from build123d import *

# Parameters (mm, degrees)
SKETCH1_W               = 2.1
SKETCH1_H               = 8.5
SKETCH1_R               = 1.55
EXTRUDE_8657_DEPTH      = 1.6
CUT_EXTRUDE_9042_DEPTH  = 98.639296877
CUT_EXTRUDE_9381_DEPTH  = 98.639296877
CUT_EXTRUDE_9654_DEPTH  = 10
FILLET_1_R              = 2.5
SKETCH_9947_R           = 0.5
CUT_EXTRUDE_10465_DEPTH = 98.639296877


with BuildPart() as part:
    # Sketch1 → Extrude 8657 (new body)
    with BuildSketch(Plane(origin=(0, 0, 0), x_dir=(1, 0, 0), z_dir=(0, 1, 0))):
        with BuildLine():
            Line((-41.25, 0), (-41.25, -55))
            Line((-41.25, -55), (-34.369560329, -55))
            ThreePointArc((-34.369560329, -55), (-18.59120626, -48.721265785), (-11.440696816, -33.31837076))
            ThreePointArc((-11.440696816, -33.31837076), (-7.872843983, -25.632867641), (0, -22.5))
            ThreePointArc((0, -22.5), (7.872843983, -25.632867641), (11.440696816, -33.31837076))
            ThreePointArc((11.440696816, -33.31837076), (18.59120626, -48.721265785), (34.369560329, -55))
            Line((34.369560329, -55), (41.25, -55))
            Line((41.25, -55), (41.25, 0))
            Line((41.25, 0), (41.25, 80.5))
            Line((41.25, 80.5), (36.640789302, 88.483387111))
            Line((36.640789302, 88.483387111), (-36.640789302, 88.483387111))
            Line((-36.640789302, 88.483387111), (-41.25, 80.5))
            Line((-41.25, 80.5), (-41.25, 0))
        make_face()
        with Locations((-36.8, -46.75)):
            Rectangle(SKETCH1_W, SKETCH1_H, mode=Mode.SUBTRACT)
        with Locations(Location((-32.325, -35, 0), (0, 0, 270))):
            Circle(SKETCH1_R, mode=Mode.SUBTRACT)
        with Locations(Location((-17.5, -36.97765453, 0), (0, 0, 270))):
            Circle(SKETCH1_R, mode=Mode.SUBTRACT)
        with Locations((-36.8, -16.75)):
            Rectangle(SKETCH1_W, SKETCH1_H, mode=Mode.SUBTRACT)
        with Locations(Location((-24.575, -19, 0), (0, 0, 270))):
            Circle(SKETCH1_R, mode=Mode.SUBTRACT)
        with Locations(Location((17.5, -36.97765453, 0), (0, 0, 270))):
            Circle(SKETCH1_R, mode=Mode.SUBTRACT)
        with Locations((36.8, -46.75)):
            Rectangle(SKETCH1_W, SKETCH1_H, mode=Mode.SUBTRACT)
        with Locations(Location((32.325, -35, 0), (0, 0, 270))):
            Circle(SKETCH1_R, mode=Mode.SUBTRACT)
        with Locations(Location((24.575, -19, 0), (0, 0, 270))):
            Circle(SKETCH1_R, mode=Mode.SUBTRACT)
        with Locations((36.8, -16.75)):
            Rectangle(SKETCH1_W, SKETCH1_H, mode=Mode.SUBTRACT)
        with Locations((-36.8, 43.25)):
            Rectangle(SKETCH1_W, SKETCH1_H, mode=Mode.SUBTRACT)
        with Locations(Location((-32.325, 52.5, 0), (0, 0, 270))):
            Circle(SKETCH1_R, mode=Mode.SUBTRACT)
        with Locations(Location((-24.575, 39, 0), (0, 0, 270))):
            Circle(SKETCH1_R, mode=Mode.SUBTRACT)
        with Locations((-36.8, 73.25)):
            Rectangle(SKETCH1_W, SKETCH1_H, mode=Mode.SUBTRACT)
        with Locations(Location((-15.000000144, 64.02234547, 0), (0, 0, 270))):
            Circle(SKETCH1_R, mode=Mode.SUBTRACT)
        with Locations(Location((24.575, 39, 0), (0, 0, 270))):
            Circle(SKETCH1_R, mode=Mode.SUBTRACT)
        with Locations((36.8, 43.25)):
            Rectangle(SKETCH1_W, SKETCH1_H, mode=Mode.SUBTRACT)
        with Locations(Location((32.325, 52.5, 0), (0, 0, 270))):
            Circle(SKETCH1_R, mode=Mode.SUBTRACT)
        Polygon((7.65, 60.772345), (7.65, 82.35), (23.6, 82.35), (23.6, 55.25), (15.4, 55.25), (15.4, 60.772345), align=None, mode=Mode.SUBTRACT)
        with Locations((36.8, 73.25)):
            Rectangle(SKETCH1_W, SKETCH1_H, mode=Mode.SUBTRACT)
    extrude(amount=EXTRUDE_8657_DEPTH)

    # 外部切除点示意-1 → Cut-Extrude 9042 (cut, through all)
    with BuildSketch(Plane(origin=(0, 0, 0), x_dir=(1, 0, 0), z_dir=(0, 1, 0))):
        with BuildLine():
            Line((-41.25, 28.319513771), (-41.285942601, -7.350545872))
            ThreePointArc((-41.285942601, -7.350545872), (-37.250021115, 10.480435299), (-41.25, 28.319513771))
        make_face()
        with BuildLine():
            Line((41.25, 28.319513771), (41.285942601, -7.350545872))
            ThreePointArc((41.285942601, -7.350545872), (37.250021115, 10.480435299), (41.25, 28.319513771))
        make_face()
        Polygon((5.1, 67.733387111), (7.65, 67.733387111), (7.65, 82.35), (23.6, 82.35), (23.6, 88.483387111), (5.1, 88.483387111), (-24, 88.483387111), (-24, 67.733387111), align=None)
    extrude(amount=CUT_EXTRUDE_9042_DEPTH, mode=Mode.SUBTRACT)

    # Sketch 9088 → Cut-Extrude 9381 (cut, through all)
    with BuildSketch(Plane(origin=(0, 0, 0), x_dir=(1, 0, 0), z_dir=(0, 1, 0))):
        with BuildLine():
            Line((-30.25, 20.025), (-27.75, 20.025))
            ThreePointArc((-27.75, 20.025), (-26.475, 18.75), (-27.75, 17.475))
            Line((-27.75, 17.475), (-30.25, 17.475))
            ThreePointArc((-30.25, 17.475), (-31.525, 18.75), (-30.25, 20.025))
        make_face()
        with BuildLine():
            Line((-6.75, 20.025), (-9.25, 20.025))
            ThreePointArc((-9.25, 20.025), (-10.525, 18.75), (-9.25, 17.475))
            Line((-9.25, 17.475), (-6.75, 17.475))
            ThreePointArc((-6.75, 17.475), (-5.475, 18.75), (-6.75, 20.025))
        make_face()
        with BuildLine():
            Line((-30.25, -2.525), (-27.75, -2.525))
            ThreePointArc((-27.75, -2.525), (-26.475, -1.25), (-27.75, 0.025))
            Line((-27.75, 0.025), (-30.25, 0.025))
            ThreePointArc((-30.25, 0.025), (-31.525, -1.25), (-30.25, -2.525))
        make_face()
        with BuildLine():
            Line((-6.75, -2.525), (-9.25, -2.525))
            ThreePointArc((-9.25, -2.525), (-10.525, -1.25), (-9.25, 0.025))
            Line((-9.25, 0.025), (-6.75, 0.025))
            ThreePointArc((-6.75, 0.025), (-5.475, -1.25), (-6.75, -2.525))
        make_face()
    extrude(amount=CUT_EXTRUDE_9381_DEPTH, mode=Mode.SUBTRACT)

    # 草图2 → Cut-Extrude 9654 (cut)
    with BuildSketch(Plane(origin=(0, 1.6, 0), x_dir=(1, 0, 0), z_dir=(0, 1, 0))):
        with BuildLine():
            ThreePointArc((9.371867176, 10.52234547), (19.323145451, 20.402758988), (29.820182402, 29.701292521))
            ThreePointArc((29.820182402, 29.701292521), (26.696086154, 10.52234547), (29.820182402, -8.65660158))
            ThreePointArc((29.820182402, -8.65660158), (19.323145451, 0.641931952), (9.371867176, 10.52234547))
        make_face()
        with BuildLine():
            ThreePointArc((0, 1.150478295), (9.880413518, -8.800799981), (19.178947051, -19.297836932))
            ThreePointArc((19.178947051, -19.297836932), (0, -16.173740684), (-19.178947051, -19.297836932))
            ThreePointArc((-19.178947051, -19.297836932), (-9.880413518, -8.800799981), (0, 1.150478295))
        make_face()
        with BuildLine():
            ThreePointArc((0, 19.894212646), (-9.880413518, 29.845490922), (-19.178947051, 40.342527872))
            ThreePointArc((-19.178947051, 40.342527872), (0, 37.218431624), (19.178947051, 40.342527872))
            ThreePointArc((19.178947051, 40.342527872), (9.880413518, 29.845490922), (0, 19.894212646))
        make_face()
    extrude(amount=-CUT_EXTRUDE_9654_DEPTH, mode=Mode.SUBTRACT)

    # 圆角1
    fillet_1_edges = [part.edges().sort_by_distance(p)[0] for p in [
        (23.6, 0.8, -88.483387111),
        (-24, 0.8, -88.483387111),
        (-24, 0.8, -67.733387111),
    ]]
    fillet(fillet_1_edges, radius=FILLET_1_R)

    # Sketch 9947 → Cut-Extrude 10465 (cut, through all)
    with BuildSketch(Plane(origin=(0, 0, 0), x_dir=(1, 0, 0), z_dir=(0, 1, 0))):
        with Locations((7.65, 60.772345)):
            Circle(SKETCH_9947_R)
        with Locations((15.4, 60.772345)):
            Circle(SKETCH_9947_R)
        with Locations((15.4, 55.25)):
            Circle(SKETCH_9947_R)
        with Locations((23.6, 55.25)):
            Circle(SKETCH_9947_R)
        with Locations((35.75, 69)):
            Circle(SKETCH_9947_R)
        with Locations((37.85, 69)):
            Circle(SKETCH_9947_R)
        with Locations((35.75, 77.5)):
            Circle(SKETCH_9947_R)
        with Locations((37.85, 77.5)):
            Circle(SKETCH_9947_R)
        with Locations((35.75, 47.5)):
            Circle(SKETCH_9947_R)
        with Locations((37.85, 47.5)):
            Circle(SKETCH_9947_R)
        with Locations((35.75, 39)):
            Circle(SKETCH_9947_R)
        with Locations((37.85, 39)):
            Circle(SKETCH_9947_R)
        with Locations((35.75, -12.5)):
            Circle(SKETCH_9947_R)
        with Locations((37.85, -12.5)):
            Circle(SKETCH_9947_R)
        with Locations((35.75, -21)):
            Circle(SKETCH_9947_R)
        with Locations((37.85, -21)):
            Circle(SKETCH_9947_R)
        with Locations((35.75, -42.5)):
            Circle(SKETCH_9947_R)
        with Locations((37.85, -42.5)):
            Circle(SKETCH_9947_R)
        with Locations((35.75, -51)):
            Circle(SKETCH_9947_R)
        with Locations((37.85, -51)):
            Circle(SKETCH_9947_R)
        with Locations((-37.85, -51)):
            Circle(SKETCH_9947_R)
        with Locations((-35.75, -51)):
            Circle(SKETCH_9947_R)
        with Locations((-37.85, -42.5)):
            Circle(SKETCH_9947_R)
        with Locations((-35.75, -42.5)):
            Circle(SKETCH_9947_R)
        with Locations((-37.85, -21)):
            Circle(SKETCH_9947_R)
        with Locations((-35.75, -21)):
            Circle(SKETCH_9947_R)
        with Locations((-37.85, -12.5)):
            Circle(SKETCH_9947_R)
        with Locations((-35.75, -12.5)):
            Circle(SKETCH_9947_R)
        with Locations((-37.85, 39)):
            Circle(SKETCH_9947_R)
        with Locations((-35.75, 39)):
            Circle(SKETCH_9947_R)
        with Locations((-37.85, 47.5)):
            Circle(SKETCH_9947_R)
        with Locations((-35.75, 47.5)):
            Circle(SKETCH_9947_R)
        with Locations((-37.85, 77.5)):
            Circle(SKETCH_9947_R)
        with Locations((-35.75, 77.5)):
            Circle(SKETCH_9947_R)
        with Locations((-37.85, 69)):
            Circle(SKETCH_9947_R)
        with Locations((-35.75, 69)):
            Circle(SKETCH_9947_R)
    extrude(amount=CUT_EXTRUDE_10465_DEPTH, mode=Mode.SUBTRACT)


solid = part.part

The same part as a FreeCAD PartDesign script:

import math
import FreeCAD as App
import Part
import Sketcher
from FreeCAD import Vector
Q = App.Units.Quantity


def edges_at(feature, points):
    """Names of the edges that pass closest to the given points."""
    edges = feature.Shape.Edges
    near = lambda p: min(range(len(edges)), key=lambda i: edges[i].distToShape(Part.Vertex(*p))[0])
    return sorted({f"Edge{near(p) + 1}" for p in points})


def add_polygon(sketch, points):
    """Adds a closed chain of lines whose ends are joined by coincident constraints."""
    first, n = sketch.GeometryCount, len(points)
    for a, b in zip(points, points[1:] + points[:1]):
        sketch.addGeometry(Part.LineSegment(App.Vector(*a, 0), App.Vector(*b, 0)), False)
    for i in range(n):
        sketch.addConstraint(Sketcher.Constraint("Coincident", first + i, 2, first + (i + 1) % n, 1))

doc = App.newDocument("Part")
body = doc.addObject("PartDesign::Body", "Body")

# Sketch on XZ plane
sketch1 = body.newObject("Sketcher::SketchObject", "Sketch")
sketch1.AttachmentSupport = (doc.getObject("XZ_Plane"), [""])
sketch1.MapMode = "FlatFace"
sketch1.addGeometry(Part.LineSegment(Vector(-41.2, 55, 0), Vector(-34.4, 55, 0)), False)  # 0
sketch1.addGeometry(Part.ArcOfCircle(Part.Circle(Vector(-34.4, 32, 0), Vector(0, 0, 1), 23), math.radians(3), math.radians(90)), False)  # 1
sketch1.addGeometry(Part.ArcOfCircle(Part.Circle(Vector(0, 34, 0), Vector(0, 0, 1), 11.5), math.radians(-177), math.radians(-90)), False)  # 2
sketch1.addGeometry(Part.ArcOfCircle(Part.Circle(Vector(0, 34, 0), Vector(0, 0, 1), 11.5), math.radians(-90), math.radians(-3)), False)  # 3
sketch1.addGeometry(Part.ArcOfCircle(Part.Circle(Vector(34.4, 32, 0), Vector(0, 0, 1), 23), math.radians(90), math.radians(177)), False)  # 4
sketch1.addGeometry(Part.LineSegment(Vector(34.4, 55, 0), Vector(41.2, 55, 0)), False)  # 5
sketch1.addGeometry(Part.LineSegment(Vector(41.2, 55, 0), Vector(41.2, -80.5, 0)), False)  # 6
sketch1.addGeometry(Part.LineSegment(Vector(41.2, -80.5, 0), Vector(36.6, -88.5, 0)), False)  # 7
sketch1.addGeometry(Part.LineSegment(Vector(36.6, -88.5, 0), Vector(-36.6, -88.5, 0)), False)  # 8
sketch1.addGeometry(Part.LineSegment(Vector(-36.6, -88.5, 0), Vector(-41.2, -80.5, 0)), False)  # 9
sketch1.addGeometry(Part.LineSegment(Vector(-41.2, -80.5, 0), Vector(-41.2, 55, 0)), False)  # 10
add_polygon(sketch1, [(-35.8, 51), (-37.9, 51), (-37.9, 42.5), (-35.8, 42.5)])  # lines 11-14
sketch1.addGeometry(Part.Circle(Vector(-32.3, 35, 0), Vector(0, 0, 1), 1.6), False)  # 15
sketch1.addGeometry(Part.Circle(Vector(-24.6, 19, 0), Vector(0, 0, 1), 1.6), False)  # 16
sketch1.addGeometry(Part.Circle(Vector(-17.5, 37, 0), Vector(0, 0, 1), 1.6), False)  # 17
add_polygon(sketch1, [(-35.8, 21), (-37.9, 21), (-37.9, 12.5), (-35.8, 12.5)])  # lines 18-21
sketch1.addGeometry(Part.Circle(Vector(17.5, 37, 0), Vector(0, 0, 1), 1.6), False)  # 22
add_polygon(sketch1, [(37.9, 51), (35.8, 51), (35.8, 42.5), (37.9, 42.5)])  # lines 23-26
sketch1.addGeometry(Part.Circle(Vector(32.3, 35, 0), Vector(0, 0, 1), 1.6), False)  # 27
sketch1.addGeometry(Part.Circle(Vector(24.6, 19, 0), Vector(0, 0, 1), 1.6), False)  # 28
add_polygon(sketch1, [(37.9, 21), (35.8, 21), (35.8, 12.5), (37.9, 12.5)])  # lines 29-32
add_polygon(sketch1, [(-35.8, -39), (-37.9, -39), (-37.9, -47.5), (-35.8, -47.5)])  # lines 33-36
sketch1.addGeometry(Part.Circle(Vector(-24.6, -39, 0), Vector(0, 0, 1), 1.6), False)  # 37
sketch1.addGeometry(Part.Circle(Vector(-32.3, -52.5, 0), Vector(0, 0, 1), 1.6), False)  # 38
add_polygon(sketch1, [(-35.8, -69), (-37.9, -69), (-37.9, -77.5), (-35.8, -77.5)])  # lines 39-42
sketch1.addGeometry(Part.Circle(Vector(-15, -64, 0), Vector(0, 0, 1), 1.6), False)  # 43
sketch1.addGeometry(Part.Circle(Vector(24.6, -39, 0), Vector(0, 0, 1), 1.6), False)  # 44
add_polygon(sketch1, [(37.9, -39), (35.8, -39), (35.8, -47.5), (37.9, -47.5)])  # lines 45-48
add_polygon(sketch1, [(15.4, -60.8), (7.7, -60.8), (7.7, -82.3), (23.6, -82.3), (23.6, -55.2), (15.4, -55.2)])  # lines 49-54
sketch1.addGeometry(Part.Circle(Vector(32.3, -52.5, 0), Vector(0, 0, 1), 1.6), False)  # 55
add_polygon(sketch1, [(37.9, -69), (35.8, -69), (35.8, -77.5), (37.9, -77.5)])  # lines 56-59
sketch1.addConstraint(Sketcher.Constraint("Tangent", 0, 2, 1, 2))
sketch1.addConstraint(Sketcher.Constraint("Tangent", 1, 1, 2, 1))
sketch1.addConstraint(Sketcher.Constraint("Tangent", 2, 2, 3, 1))
sketch1.addConstraint(Sketcher.Constraint("Tangent", 3, 2, 4, 2))
sketch1.addConstraint(Sketcher.Constraint("Tangent", 4, 1, 5, 1))
sketch1.addConstraint(Sketcher.Constraint("Coincident", 5, 2, 6, 1))
sketch1.addConstraint(Sketcher.Constraint("Coincident", 6, 2, 7, 1))
sketch1.addConstraint(Sketcher.Constraint("Coincident", 7, 2, 8, 1))
sketch1.addConstraint(Sketcher.Constraint("Coincident", 8, 2, 9, 1))
sketch1.addConstraint(Sketcher.Constraint("Coincident", 9, 2, 10, 1))
sketch1.addConstraint(Sketcher.Constraint("Coincident", 10, 2, 0, 1))
sketch1.addConstraint(Sketcher.Constraint("Horizontal", 0))
sketch1.addConstraint(Sketcher.Constraint("Horizontal", 5))
sketch1.addConstraint(Sketcher.Constraint("Vertical", 6))
sketch1.addConstraint(Sketcher.Constraint("Horizontal", 8))
sketch1.addConstraint(Sketcher.Constraint("Vertical", 10))
sketch1.addConstraint(Sketcher.Constraint("Horizontal", 11))
sketch1.addConstraint(Sketcher.Constraint("Vertical", 12))
sketch1.addConstraint(Sketcher.Constraint("Horizontal", 13))
sketch1.addConstraint(Sketcher.Constraint("Vertical", 14))
sketch1.addConstraint(Sketcher.Constraint("Horizontal", 18))
sketch1.addConstraint(Sketcher.Constraint("Vertical", 19))
sketch1.addConstraint(Sketcher.Constraint("Horizontal", 20))
sketch1.addConstraint(Sketcher.Constraint("Vertical", 21))
sketch1.addConstraint(Sketcher.Constraint("Horizontal", 23))
sketch1.addConstraint(Sketcher.Constraint("Vertical", 24))
sketch1.addConstraint(Sketcher.Constraint("Horizontal", 25))
sketch1.addConstraint(Sketcher.Constraint("Vertical", 26))
sketch1.addConstraint(Sketcher.Constraint("Horizontal", 29))
sketch1.addConstraint(Sketcher.Constraint("Vertical", 30))
sketch1.addConstraint(Sketcher.Constraint("Horizontal", 31))
sketch1.addConstraint(Sketcher.Constraint("Vertical", 32))
sketch1.addConstraint(Sketcher.Constraint("Horizontal", 33))
sketch1.addConstraint(Sketcher.Constraint("Vertical", 34))
sketch1.addConstraint(Sketcher.Constraint("Horizontal", 35))
sketch1.addConstraint(Sketcher.Constraint("Vertical", 36))
sketch1.addConstraint(Sketcher.Constraint("Horizontal", 39))
sketch1.addConstraint(Sketcher.Constraint("Vertical", 40))
sketch1.addConstraint(Sketcher.Constraint("Horizontal", 41))
sketch1.addConstraint(Sketcher.Constraint("Vertical", 42))
sketch1.addConstraint(Sketcher.Constraint("Horizontal", 45))
sketch1.addConstraint(Sketcher.Constraint("Vertical", 46))
sketch1.addConstraint(Sketcher.Constraint("Horizontal", 47))
sketch1.addConstraint(Sketcher.Constraint("Vertical", 48))
sketch1.addConstraint(Sketcher.Constraint("Horizontal", 49))
sketch1.addConstraint(Sketcher.Constraint("Vertical", 50))
sketch1.addConstraint(Sketcher.Constraint("Horizontal", 51))
sketch1.addConstraint(Sketcher.Constraint("Vertical", 52))
sketch1.addConstraint(Sketcher.Constraint("Horizontal", 53))
sketch1.addConstraint(Sketcher.Constraint("Vertical", 54))
sketch1.addConstraint(Sketcher.Constraint("Horizontal", 56))
sketch1.addConstraint(Sketcher.Constraint("Vertical", 57))
sketch1.addConstraint(Sketcher.Constraint("Horizontal", 58))
sketch1.addConstraint(Sketcher.Constraint("Vertical", 59))
sketch1.addConstraint(Sketcher.Constraint("Equal", 2, 3))
sketch1.addConstraint(Sketcher.Constraint("Equal", 1, 4))
sketch1.addConstraint(Sketcher.Constraint("Equal", 15, 16))
sketch1.addConstraint(Sketcher.Constraint("Equal", 16, 17))
sketch1.addConstraint(Sketcher.Constraint("Equal", 17, 22))
sketch1.addConstraint(Sketcher.Constraint("Equal", 22, 27))
sketch1.addConstraint(Sketcher.Constraint("Equal", 27, 28))
sketch1.addConstraint(Sketcher.Constraint("Equal", 28, 37))
sketch1.addConstraint(Sketcher.Constraint("Equal", 37, 38))
sketch1.addConstraint(Sketcher.Constraint("Equal", 38, 43))
sketch1.addConstraint(Sketcher.Constraint("Equal", 43, 44))
sketch1.addConstraint(Sketcher.Constraint("Equal", 44, 55))
sketch1.addConstraint(Sketcher.Constraint("Symmetric", 1, 3, 4, 3, -2))
sketch1.addConstraint(Sketcher.Constraint("Symmetric", 17, 3, 22, 3, -2))
sketch1.addConstraint(Sketcher.Constraint("Symmetric", 15, 3, 27, 3, -2))
sketch1.addConstraint(Sketcher.Constraint("Symmetric", 16, 3, 28, 3, -2))
sketch1.addConstraint(Sketcher.Constraint("Symmetric", 37, 3, 44, 3, -2))
sketch1.addConstraint(Sketcher.Constraint("Symmetric", 38, 3, 55, 3, -2))
sketch1.addConstraint(Sketcher.Constraint("Symmetric", 6, 2, 9, 2, -2))
sketch1.addConstraint(Sketcher.Constraint("Symmetric", 14, 2, 23, 2, -2))
sketch1.addConstraint(Sketcher.Constraint("Symmetric", 12, 2, 25, 2, -2))
sketch1.addConstraint(Sketcher.Constraint("Symmetric", 21, 2, 29, 2, -2))
sketch1.addConstraint(Sketcher.Constraint("Symmetric", 19, 2, 31, 2, -2))
sketch1.addConstraint(Sketcher.Constraint("Symmetric", 36, 2, 45, 2, -2))
sketch1.addConstraint(Sketcher.Constraint("Symmetric", 34, 2, 47, 2, -2))
sketch1.addConstraint(Sketcher.Constraint("Symmetric", 42, 2, 56, 2, -2))
sketch1.addConstraint(Sketcher.Constraint("Symmetric", 40, 2, 58, 2, -2))
sketch1.addConstraint(Sketcher.Constraint("PointOnObject", 2, 2, -2))
sketch1.addConstraint(Sketcher.Constraint("Horizontal", 44, 3, 33, 2))
sketch1.addConstraint(Sketcher.Constraint("Vertical", 16, 3, 37, 3))
sketch1.addConstraint(Sketcher.Constraint("Vertical", 15, 3, 38, 3))
sketch1.addConstraint(Sketcher.Constraint("Vertical", 12, 2, 18, 2))
sketch1.addConstraint(Sketcher.Constraint("Vertical", 14, 2, 20, 2))
sketch1.addConstraint(Sketcher.Constraint("Vertical", 19, 2, 33, 2))
sketch1.addConstraint(Sketcher.Constraint("Vertical", 21, 2, 35, 2))
sketch1.addConstraint(Sketcher.Constraint("Vertical", 34, 2, 39, 2))
sketch1.addConstraint(Sketcher.Constraint("Vertical", 36, 2, 41, 2))
sketch1.addConstraint(Sketcher.Constraint("Equal", 14, 19))
sketch1.addConstraint(Sketcher.Constraint("Equal", 32, 34))
sketch1.addConstraint(Sketcher.Constraint("Equal", 36, 40))
sketch1.addConstraint(Sketcher.Constraint("Equal", 7, 9))
sketch1.addConstraint(Sketcher.Constraint("Diameter", 15, 3.1))
sketch1.addConstraint(Sketcher.Constraint("Angle", 7, Q("-120 deg")))
sketch1.addConstraint(Sketcher.Constraint("DistanceX", 11, 2, 11, 1, 2.1))
sketch1.addConstraint(Sketcher.Constraint("DistanceX", 53, 2, 53, 1, 8.2))
sketch1.addConstraint(Sketcher.Constraint("DistanceY", 6, 2, 6, 1, 135.5))
sketch1.addConstraint(Sketcher.Constraint("DistanceY", 12, 2, 12, 1, 8.5))
sketch1.addConstraint(Sketcher.Constraint("DistanceY", 52, 1, 52, 2, 27.1))
sketch1.addConstraint(Sketcher.Constraint("DistanceY", -1, 1, 15, 3, 35.0))
sketch1.addConstraint(Sketcher.Constraint("DistanceY", -1, 1, 16, 3, 19.0))
sketch1.addConstraint(Sketcher.Constraint("DistanceY", 37, 3, -1, 1, 39.0))
sketch1.addConstraint(Sketcher.Constraint("DistanceX", 43, 3, -1, 1, 15.0))
sketch1.addConstraint(Sketcher.Constraint("DistanceY", -1, 1, 0, 2, 55.0))
sketch1.addConstraint(Sketcher.Constraint("DistanceY", -1, 1, 11, 2, 51.0))
sketch1.addConstraint(Sketcher.Constraint("DistanceY", -1, 1, 18, 2, 21.0))
sketch1.addConstraint(Sketcher.Constraint("DistanceY", 39, 2, -1, 1, 69.0))
sketch1.addConstraint(Sketcher.Constraint("DistanceX", 49, 2, 49, 1, 7.75))
sketch1.addConstraint(Sketcher.Constraint("DistanceX", 17, 3, -1, 1, 17.5))
sketch1.addConstraint(Sketcher.Constraint("DistanceY", 38, 3, -1, 1, 52.5))
sketch1.addConstraint(Sketcher.Constraint("DistanceY", -1, 1, 2, 2, 22.5))
sketch1.addConstraint(Sketcher.Constraint("DistanceX", -1, 1, 51, 2, 23.6))
sketch1.addConstraint(Sketcher.Constraint("DistanceX", -1, 1, 5, 2, 41.25))
sketch1.addConstraint(Sketcher.Constraint("DistanceX", 11, 2, -1, 1, 37.85))
sketch1.addConstraint(Sketcher.Constraint("DistanceY", 50, 2, -1, 1, 82.35))
sketch1.addConstraint(Sketcher.Constraint("DistanceX", 15, 3, -1, 1, 32.325))
sketch1.addConstraint(Sketcher.Constraint("DistanceX", 16, 3, -1, 1, 24.575))
sketch1.addConstraint(Sketcher.Constraint("Radius", 1, 22.964737))
sketch1.addConstraint(Sketcher.Constraint("Radius", 2, 11.458596))
sketch1.addConstraint(Sketcher.Constraint("DistanceX", 8, 2, 8, 1, 73.281579))
sketch1.addConstraint(Sketcher.Constraint("DistanceY", 50, 2, 50, 1, 21.577655))
sketch1.addConstraint(Sketcher.Constraint("DistanceY", -1, 1, 17, 3, 36.977655))
sketch1.addConstraint(Sketcher.Constraint("DistanceY", 43, 3, -1, 1, 64.022345))
pad1 = body.newObject("PartDesign::Pad", "Pad")
pad1.Profile = sketch1
pad1.Length = 1.6
pad1.Reversed = True

# Sketch on XZ plane
sketch2 = body.newObject("Sketcher::SketchObject", "Sketch001")
sketch2.AttachmentSupport = (doc.getObject("XZ_Plane"), [""])
sketch2.MapMode = "FlatFace"
sketch2.addGeometry(Part.LineSegment(Vector(-41, -28, 0), Vector(-41, 7, 0)), False)  # 0
sketch2.addGeometry(Part.ArcOfCircle(Part.Circle(Vector(-79, -11, 0), Vector(0, 0, 1), 42), math.radians(-25), math.radians(25)), False)  # 1
sketch2.addGeometry(Part.LineSegment(Vector(41, 7, 0), Vector(41, -28, 0)), False)  # 2
sketch2.addGeometry(Part.ArcOfCircle(Part.Circle(Vector(79, -11, 0), Vector(0, 0, 1), 42), math.radians(155), math.radians(205)), False)  # 3
add_polygon(sketch2, [(8, -68), (8, -82), (24, -82), (24, -88), (-24, -88), (-24, -68)])  # lines 4-9
sketch2.addConstraint(Sketcher.Constraint("Coincident", 0, 1, 1, 1))
sketch2.addConstraint(Sketcher.Constraint("Coincident", 1, 2, 0, 2))
sketch2.addConstraint(Sketcher.Constraint("Coincident", 2, 1, 3, 1))
sketch2.addConstraint(Sketcher.Constraint("Coincident", 3, 2, 2, 2))
sketch2.addConstraint(Sketcher.Constraint("Vertical", 4))
sketch2.addConstraint(Sketcher.Constraint("Horizontal", 5))
sketch2.addConstraint(Sketcher.Constraint("Vertical", 6))
sketch2.addConstraint(Sketcher.Constraint("Horizontal", 7))
sketch2.addConstraint(Sketcher.Constraint("Vertical", 8))
sketch2.addConstraint(Sketcher.Constraint("Horizontal", 9))
sketch2.addConstraint(Sketcher.Constraint("Equal", 1, 3))
sketch2.addConstraint(Sketcher.Constraint("Symmetric", 1, 3, 3, 3, -2))
sketch2.addConstraint(Sketcher.Constraint("Horizontal", 1, 2, 2, 1))
sketch2.addConstraint(Sketcher.Constraint("Horizontal", 0, 1, 3, 2))
sketch2.addConstraint(Sketcher.Constraint("DistanceX", 7, 2, 7, 1, 47.6))
sketch2.addConstraint(Sketcher.Constraint("DistanceX", 7, 2, -1, 1, 24.0))
sketch2.addConstraint(Sketcher.Constraint("DistanceX", 5, 1, 5, 2, 15.95))
sketch2.addConstraint(Sketcher.Constraint("DistanceY", 8, 1, 8, 2, 20.75))
sketch2.addConstraint(Sketcher.Constraint("Radius", 1, 41.5924))
sketch2.addConstraint(Sketcher.Constraint("DistanceX", 0, 1, 3, 2, 82.5))
sketch2.addConstraint(Sketcher.Constraint("DistanceY", 4, 2, -1, 1, 82.35))
sketch2.addConstraint(Sketcher.Constraint("DistanceX", 1, 3, -1, 1, 78.8424))
sketch2.addConstraint(Sketcher.Constraint("DistanceY", 4, 2, 4, 1, 14.616613))
sketch2.addConstraint(Sketcher.Constraint("DistanceY", 0, 1, 1, 2, 35.67006))
sketch2.addConstraint(Sketcher.Constraint("DistanceY", 6, 2, 3, 3, 77.961042))
pocket1 = body.newObject("PartDesign::Pocket", "Pocket")
pocket1.Profile = sketch2
pocket1.Type = "ThroughAll"

# Sketch on XZ plane
sketch3 = body.newObject("Sketcher::SketchObject", "Sketch002")
sketch3.AttachmentSupport = (doc.getObject("XZ_Plane"), [""])
sketch3.MapMode = "FlatFace"
sketch3.addGeometry(Part.LineSegment(Vector(-27.8, -20, 0), Vector(-30.2, -20, 0)), False)
sketch3.addGeometry(Part.ArcOfCircle(Part.Circle(Vector(-30.2, -18.8, 0), Vector(0, 0, 1), 1.3), math.radians(90), math.radians(270)), False)
sketch3.addGeometry(Part.LineSegment(Vector(-30.2, -17.5, 0), Vector(-27.8, -17.5, 0)), False)
sketch3.addGeometry(Part.ArcOfCircle(Part.Circle(Vector(-27.8, -18.8, 0), Vector(0, 0, 1), 1.3), math.radians(-90), math.radians(90)), False)
sketch3.addGeometry(Part.LineSegment(Vector(-6.8, -20, 0), Vector(-9.2, -20, 0)), False)
sketch3.addGeometry(Part.ArcOfCircle(Part.Circle(Vector(-9.2, -18.8, 0), Vector(0, 0, 1), 1.3), math.radians(90), math.radians(270)), False)
sketch3.addGeometry(Part.LineSegment(Vector(-9.2, -17.5, 0), Vector(-6.8, -17.5, 0)), False)
sketch3.addGeometry(Part.ArcOfCircle(Part.Circle(Vector(-6.8, -18.8, 0), Vector(0, 0, 1), 1.3), math.radians(-90), math.radians(90)), False)
sketch3.addGeometry(Part.LineSegment(Vector(-30.2, 2.5, 0), Vector(-27.8, 2.5, 0)), False)
sketch3.addGeometry(Part.ArcOfCircle(Part.Circle(Vector(-27.8, 1.2, 0), Vector(0, 0, 1), 1.3), math.radians(-90), math.radians(90)), False)
sketch3.addGeometry(Part.LineSegment(Vector(-27.8, 0, 0), Vector(-30.2, 0, 0)), False)
sketch3.addGeometry(Part.ArcOfCircle(Part.Circle(Vector(-30.2, 1.2, 0), Vector(0, 0, 1), 1.3), math.radians(90), math.radians(270)), False)
sketch3.addGeometry(Part.LineSegment(Vector(-9.2, 2.5, 0), Vector(-6.8, 2.5, 0)), False)
sketch3.addGeometry(Part.ArcOfCircle(Part.Circle(Vector(-6.8, 1.2, 0), Vector(0, 0, 1), 1.3), math.radians(-90), math.radians(90)), False)
sketch3.addGeometry(Part.LineSegment(Vector(-6.8, 0, 0), Vector(-9.2, 0, 0)), False)
sketch3.addGeometry(Part.ArcOfCircle(Part.Circle(Vector(-9.2, 1.2, 0), Vector(0, 0, 1), 1.3), math.radians(90), math.radians(270)), False)
sketch3.addConstraint(Sketcher.Constraint("Tangent", 0, 2, 1, 2))
sketch3.addConstraint(Sketcher.Constraint("Tangent", 1, 1, 2, 1))
sketch3.addConstraint(Sketcher.Constraint("Tangent", 2, 2, 3, 2))
sketch3.addConstraint(Sketcher.Constraint("Tangent", 3, 1, 0, 1))
sketch3.addConstraint(Sketcher.Constraint("Tangent", 4, 2, 5, 2))
sketch3.addConstraint(Sketcher.Constraint("Tangent", 5, 1, 6, 1))
sketch3.addConstraint(Sketcher.Constraint("Tangent", 6, 2, 7, 2))
sketch3.addConstraint(Sketcher.Constraint("Tangent", 7, 1, 4, 1))
sketch3.addConstraint(Sketcher.Constraint("Tangent", 8, 2, 9, 2))
sketch3.addConstraint(Sketcher.Constraint("Tangent", 9, 1, 10, 1))
sketch3.addConstraint(Sketcher.Constraint("Tangent", 10, 2, 11, 2))
sketch3.addConstraint(Sketcher.Constraint("Tangent", 11, 1, 8, 1))
sketch3.addConstraint(Sketcher.Constraint("Tangent", 12, 2, 13, 2))
sketch3.addConstraint(Sketcher.Constraint("Tangent", 13, 1, 14, 1))
sketch3.addConstraint(Sketcher.Constraint("Tangent", 14, 2, 15, 2))
sketch3.addConstraint(Sketcher.Constraint("Tangent", 15, 1, 12, 1))
sketch3.addConstraint(Sketcher.Constraint("Horizontal", 0))
sketch3.addConstraint(Sketcher.Constraint("Horizontal", 2))
sketch3.addConstraint(Sketcher.Constraint("Horizontal", 4))
sketch3.addConstraint(Sketcher.Constraint("Horizontal", 6))
sketch3.addConstraint(Sketcher.Constraint("Horizontal", 8))
sketch3.addConstraint(Sketcher.Constraint("Horizontal", 10))
sketch3.addConstraint(Sketcher.Constraint("Horizontal", 12))
sketch3.addConstraint(Sketcher.Constraint("Horizontal", 14))
sketch3.addConstraint(Sketcher.Constraint("Equal", 3, 5))
sketch3.addConstraint(Sketcher.Constraint("Equal", 7, 9))
sketch3.addConstraint(Sketcher.Constraint("Equal", 11, 13))
sketch3.addConstraint(Sketcher.Constraint("Horizontal", 3, 3, 5, 3))
sketch3.addConstraint(Sketcher.Constraint("Horizontal", 11, 3, 13, 3))
sketch3.addConstraint(Sketcher.Constraint("Vertical", 3, 3, 9, 3))
sketch3.addConstraint(Sketcher.Constraint("Vertical", 1, 3, 11, 3))
sketch3.addConstraint(Sketcher.Constraint("Vertical", 7, 3, 13, 3))
sketch3.addConstraint(Sketcher.Constraint("Vertical", 5, 3, 15, 3))
sketch3.addConstraint(Sketcher.Constraint("Equal", 2, 4))
sketch3.addConstraint(Sketcher.Constraint("DistanceX", 0, 2, 0, 1, 2.5))
sketch3.addConstraint(Sketcher.Constraint("Radius", 1, 1.275))
sketch3.addConstraint(Sketcher.Constraint("DistanceX", 1, 3, 5, 3, 21.0))
sketch3.addConstraint(Sketcher.Constraint("DistanceY", 3, 3, 9, 3, 20.0))
sketch3.addConstraint(Sketcher.Constraint("DistanceX", 1, 3, -1, 1, 30.25))
sketch3.addConstraint(Sketcher.Constraint("DistanceY", 1, 3, -1, 1, 18.75))
pocket2 = body.newObject("PartDesign::Pocket", "Pocket001")
pocket2.Profile = sketch3
pocket2.Type = "ThroughAll"

# Sketch on XZ plane
sketch4 = body.newObject("Sketcher::SketchObject", "Sketch003")
sketch4.AttachmentSupport = (doc.getObject("XZ_Plane"), [""])
sketch4.MapMode = "FlatFace"
sketch4.AttachmentOffset = App.Placement(Vector(0, 0, -1.6), App.Rotation())
sketch4.addGeometry(Part.ArcOfCircle(Part.Circle(Vector(188, 159, 0), Vector(0, 0, 1), 247), math.radians(-136.43), math.radians(-129.91)), False)
sketch4.addGeometry(Part.ArcOfCircle(Part.Circle(Vector(188, -180, 0), Vector(0, 0, 1), 247), math.radians(129.91), math.radians(136.43)), False)
sketch4.addGeometry(Part.ArcOfCircle(Part.Circle(Vector(87, -11, 0), Vector(0, 0, 1), 60), math.radians(161), math.radians(199)), False)
sketch4.addGeometry(Part.ArcOfCircle(Part.Circle(Vector(-170, 177, 0), Vector(0, 0, 1), 247), math.radians(-46.43), math.radians(-39.91)), False)
sketch4.addGeometry(Part.ArcOfCircle(Part.Circle(Vector(170, 177, 0), Vector(0, 0, 1), 247), math.radians(-140.09), math.radians(-133.57)), False)
sketch4.addGeometry(Part.ArcOfCircle(Part.Circle(Vector(0, 77, 0), Vector(0, 0, 1), 60), math.radians(-109), math.radians(-71)), False)
sketch4.addGeometry(Part.ArcOfCircle(Part.Circle(Vector(170, -198, 0), Vector(0, 0, 1), 247), math.radians(133.57), math.radians(140.09)), False)
sketch4.addGeometry(Part.ArcOfCircle(Part.Circle(Vector(-170, -198, 0), Vector(0, 0, 1), 247), math.radians(39.91), math.radians(46.43)), False)
sketch4.addGeometry(Part.ArcOfCircle(Part.Circle(Vector(0, -98, 0), Vector(0, 0, 1), 60), math.radians(71), math.radians(109)), False)
sketch4.addConstraint(Sketcher.Constraint("Coincident", 0, 1, 1, 2))
sketch4.addConstraint(Sketcher.Constraint("Coincident", 1, 1, 2, 1))
sketch4.addConstraint(Sketcher.Constraint("Coincident", 2, 2, 0, 2))
sketch4.addConstraint(Sketcher.Constraint("Coincident", 3, 1, 4, 2))
sketch4.addConstraint(Sketcher.Constraint("Coincident", 4, 1, 5, 1))
sketch4.addConstraint(Sketcher.Constraint("Coincident", 5, 2, 3, 2))
sketch4.addConstraint(Sketcher.Constraint("Coincident", 6, 1, 7, 2))
sketch4.addConstraint(Sketcher.Constraint("Coincident", 7, 1, 8, 1))
sketch4.addConstraint(Sketcher.Constraint("Coincident", 8, 2, 6, 2))
sketch4.addConstraint(Sketcher.Constraint("Equal", 0, 1))
sketch4.addConstraint(Sketcher.Constraint("Equal", 1, 3))
sketch4.addConstraint(Sketcher.Constraint("Equal", 3, 4))
sketch4.addConstraint(Sketcher.Constraint("Equal", 2, 5))
sketch4.addConstraint(Sketcher.Constraint("Equal", 4, 6))
sketch4.addConstraint(Sketcher.Constraint("Equal", 6, 7))
sketch4.addConstraint(Sketcher.Constraint("Equal", 5, 8))
sketch4.addConstraint(Sketcher.Constraint("Symmetric", 3, 3, 4, 3, -2))
sketch4.addConstraint(Sketcher.Constraint("Symmetric", 6, 3, 7, 3, -2))
sketch4.addConstraint(Sketcher.Constraint("PointOnObject", 5, 3, -2))
sketch4.addConstraint(Sketcher.Constraint("PointOnObject", 8, 3, -2))
sketch4.addConstraint(Sketcher.Constraint("Horizontal", 2, 3, 0, 1))
sketch4.addConstraint(Sketcher.Constraint("Vertical", 0, 3, 1, 3))
sketch4.addConstraint(Sketcher.Constraint("Vertical", 4, 3, 6, 3))
sketch4.addConstraint(Sketcher.Constraint("Vertical", 5, 2, 7, 1))
sketch4.addConstraint(Sketcher.Constraint("Radius", 0, 246.500282))
sketch4.addConstraint(Sketcher.Constraint("Radius", 2, 60.432195))
sketch4.addConstraint(Sketcher.Constraint("DistanceY", 1, 3, -1, 1, 180.435098))
sketch4.addConstraint(Sketcher.Constraint("DistanceY", -1, 1, 1, 1, 8.656602))
sketch4.addConstraint(Sketcher.Constraint("DistanceX", 2, 2, 2, 3, 57.308099))
sketch4.addConstraint(Sketcher.Constraint("DistanceY", 4, 1, 5, 3, 57.308099))
sketch4.addConstraint(Sketcher.Constraint("DistanceX", -1, 1, 2, 3, 87.128281))
sketch4.addConstraint(Sketcher.Constraint("DistanceY", 3, 1, -1, 1, 1.150478))
sketch4.addConstraint(Sketcher.Constraint("DistanceY", 2, 3, 3, 3, 187.955308))
sketch4.addConstraint(Sketcher.Constraint("DistanceY", 6, 3, 2, 3, 187.955308))
pocket3 = body.newObject("PartDesign::Pocket", "Pocket002")
pocket3.Profile = sketch4
pocket3.Length = 10
pocket3.Reversed = True
doc.recompute()

fillet = body.newObject("PartDesign::Fillet", "Fillet")
fillet.Base = (pocket3, edges_at(pocket3, [(23.6, 0.8, -88.483), (-24, 0.8, -88.483), (-24, 0.8, -67.733)]))
fillet.Radius = 2.5

# Sketch on XZ plane
sketch5 = body.newObject("Sketcher::SketchObject", "Sketch004")
sketch5.AttachmentSupport = (doc.getObject("XZ_Plane"), [""])
sketch5.MapMode = "FlatFace"
sketch5.addGeometry(Part.Circle(Vector(7.7, -60.8, 0), Vector(0, 0, 1), 0.5), False)
sketch5.addGeometry(Part.Circle(Vector(15.4, -60.8, 0), Vector(0, 0, 1), 0.5), False)
sketch5.addGeometry(Part.Circle(Vector(15.4, -55.2, 0), Vector(0, 0, 1), 0.5), False)
sketch5.addGeometry(Part.Circle(Vector(23.6, -55.2, 0), Vector(0, 0, 1), 0.5), False)
sketch5.addGeometry(Part.Circle(Vector(35.8, -69, 0), Vector(0, 0, 1), 0.5), False)
sketch5.addGeometry(Part.Circle(Vector(37.9, -69, 0), Vector(0, 0, 1), 0.5), False)
sketch5.addGeometry(Part.Circle(Vector(35.8, -77.5, 0), Vector(0, 0, 1), 0.5), False)
sketch5.addGeometry(Part.Circle(Vector(37.9, -77.5, 0), Vector(0, 0, 1), 0.5), False)
sketch5.addGeometry(Part.Circle(Vector(35.8, -47.5, 0), Vector(0, 0, 1), 0.5), False)
sketch5.addGeometry(Part.Circle(Vector(37.9, -47.5, 0), Vector(0, 0, 1), 0.5), False)
sketch5.addGeometry(Part.Circle(Vector(35.8, -39, 0), Vector(0, 0, 1), 0.5), False)
sketch5.addGeometry(Part.Circle(Vector(37.9, -39, 0), Vector(0, 0, 1), 0.5), False)
sketch5.addGeometry(Part.Circle(Vector(35.8, 12.5, 0), Vector(0, 0, 1), 0.5), False)
sketch5.addGeometry(Part.Circle(Vector(37.9, 12.5, 0), Vector(0, 0, 1), 0.5), False)
sketch5.addGeometry(Part.Circle(Vector(35.8, 21, 0), Vector(0, 0, 1), 0.5), False)
sketch5.addGeometry(Part.Circle(Vector(37.9, 21, 0), Vector(0, 0, 1), 0.5), False)
sketch5.addGeometry(Part.Circle(Vector(35.8, 42.5, 0), Vector(0, 0, 1), 0.5), False)
sketch5.addGeometry(Part.Circle(Vector(37.9, 42.5, 0), Vector(0, 0, 1), 0.5), False)
sketch5.addGeometry(Part.Circle(Vector(35.8, 51, 0), Vector(0, 0, 1), 0.5), False)
sketch5.addGeometry(Part.Circle(Vector(37.9, 51, 0), Vector(0, 0, 1), 0.5), False)
sketch5.addGeometry(Part.Circle(Vector(-37.9, 51, 0), Vector(0, 0, 1), 0.5), False)
sketch5.addGeometry(Part.Circle(Vector(-35.8, 51, 0), Vector(0, 0, 1), 0.5), False)
sketch5.addGeometry(Part.Circle(Vector(-37.9, 42.5, 0), Vector(0, 0, 1), 0.5), False)
sketch5.addGeometry(Part.Circle(Vector(-35.8, 42.5, 0), Vector(0, 0, 1), 0.5), False)
sketch5.addGeometry(Part.Circle(Vector(-37.9, 21, 0), Vector(0, 0, 1), 0.5), False)
sketch5.addGeometry(Part.Circle(Vector(-35.8, 21, 0), Vector(0, 0, 1), 0.5), False)
sketch5.addGeometry(Part.Circle(Vector(-37.9, 12.5, 0), Vector(0, 0, 1), 0.5), False)
sketch5.addGeometry(Part.Circle(Vector(-35.8, 12.5, 0), Vector(0, 0, 1), 0.5), False)
sketch5.addGeometry(Part.Circle(Vector(-37.9, -39, 0), Vector(0, 0, 1), 0.5), False)
sketch5.addGeometry(Part.Circle(Vector(-35.8, -39, 0), Vector(0, 0, 1), 0.5), False)
sketch5.addGeometry(Part.Circle(Vector(-37.9, -47.5, 0), Vector(0, 0, 1), 0.5), False)
sketch5.addGeometry(Part.Circle(Vector(-35.8, -47.5, 0), Vector(0, 0, 1), 0.5), False)
sketch5.addGeometry(Part.Circle(Vector(-37.9, -77.5, 0), Vector(0, 0, 1), 0.5), False)
sketch5.addGeometry(Part.Circle(Vector(-35.8, -77.5, 0), Vector(0, 0, 1), 0.5), False)
sketch5.addGeometry(Part.Circle(Vector(-37.9, -69, 0), Vector(0, 0, 1), 0.5), False)
sketch5.addGeometry(Part.Circle(Vector(-35.8, -69, 0), Vector(0, 0, 1), 0.5), False)
sketch5.addConstraint(Sketcher.Constraint("Equal", 0, 1))
sketch5.addConstraint(Sketcher.Constraint("Equal", 1, 2))
sketch5.addConstraint(Sketcher.Constraint("Equal", 2, 3))
sketch5.addConstraint(Sketcher.Constraint("Equal", 3, 4))
sketch5.addConstraint(Sketcher.Constraint("Equal", 4, 5))
sketch5.addConstraint(Sketcher.Constraint("Equal", 5, 6))
sketch5.addConstraint(Sketcher.Constraint("Equal", 6, 7))
sketch5.addConstraint(Sketcher.Constraint("Equal", 7, 8))
sketch5.addConstraint(Sketcher.Constraint("Equal", 8, 9))
sketch5.addConstraint(Sketcher.Constraint("Equal", 9, 10))
sketch5.addConstraint(Sketcher.Constraint("Equal", 10, 11))
sketch5.addConstraint(Sketcher.Constraint("Equal", 11, 12))
sketch5.addConstraint(Sketcher.Constraint("Equal", 12, 13))
sketch5.addConstraint(Sketcher.Constraint("Equal", 13, 14))
sketch5.addConstraint(Sketcher.Constraint("Equal", 14, 15))
sketch5.addConstraint(Sketcher.Constraint("Equal", 15, 16))
sketch5.addConstraint(Sketcher.Constraint("Equal", 16, 17))
sketch5.addConstraint(Sketcher.Constraint("Equal", 17, 18))
sketch5.addConstraint(Sketcher.Constraint("Equal", 18, 19))
sketch5.addConstraint(Sketcher.Constraint("Equal", 19, 20))
sketch5.addConstraint(Sketcher.Constraint("Equal", 20, 21))
sketch5.addConstraint(Sketcher.Constraint("Equal", 21, 22))
sketch5.addConstraint(Sketcher.Constraint("Equal", 22, 23))
sketch5.addConstraint(Sketcher.Constraint("Equal", 23, 24))
sketch5.addConstraint(Sketcher.Constraint("Equal", 24, 25))
sketch5.addConstraint(Sketcher.Constraint("Equal", 25, 26))
sketch5.addConstraint(Sketcher.Constraint("Equal", 26, 27))
sketch5.addConstraint(Sketcher.Constraint("Equal", 27, 28))
sketch5.addConstraint(Sketcher.Constraint("Equal", 28, 29))
sketch5.addConstraint(Sketcher.Constraint("Equal", 29, 30))
sketch5.addConstraint(Sketcher.Constraint("Equal", 30, 31))
sketch5.addConstraint(Sketcher.Constraint("Equal", 31, 32))
sketch5.addConstraint(Sketcher.Constraint("Equal", 32, 33))
sketch5.addConstraint(Sketcher.Constraint("Equal", 33, 34))
sketch5.addConstraint(Sketcher.Constraint("Equal", 34, 35))
sketch5.addConstraint(Sketcher.Constraint("Symmetric", 19, 3, 20, 3, -2))
sketch5.addConstraint(Sketcher.Constraint("Symmetric", 18, 3, 21, 3, -2))
sketch5.addConstraint(Sketcher.Constraint("Symmetric", 17, 3, 22, 3, -2))
sketch5.addConstraint(Sketcher.Constraint("Symmetric", 16, 3, 23, 3, -2))
sketch5.addConstraint(Sketcher.Constraint("Symmetric", 15, 3, 24, 3, -2))
sketch5.addConstraint(Sketcher.Constraint("Symmetric", 14, 3, 25, 3, -2))
sketch5.addConstraint(Sketcher.Constraint("Symmetric", 13, 3, 26, 3, -2))
sketch5.addConstraint(Sketcher.Constraint("Symmetric", 12, 3, 27, 3, -2))
sketch5.addConstraint(Sketcher.Constraint("Symmetric", 11, 3, 28, 3, -2))
sketch5.addConstraint(Sketcher.Constraint("Symmetric", 10, 3, 29, 3, -2))
sketch5.addConstraint(Sketcher.Constraint("Symmetric", 9, 3, 30, 3, -2))
sketch5.addConstraint(Sketcher.Constraint("Symmetric", 8, 3, 31, 3, -2))
sketch5.addConstraint(Sketcher.Constraint("Symmetric", 7, 3, 32, 3, -2))
sketch5.addConstraint(Sketcher.Constraint("Symmetric", 6, 3, 33, 3, -2))
sketch5.addConstraint(Sketcher.Constraint("Symmetric", 5, 3, 34, 3, -2))
sketch5.addConstraint(Sketcher.Constraint("Symmetric", 4, 3, 35, 3, -2))
sketch5.addConstraint(Sketcher.Constraint("Horizontal", 0, 3, 1, 3))
sketch5.addConstraint(Sketcher.Constraint("Horizontal", 2, 3, 3, 3))
sketch5.addConstraint(Sketcher.Constraint("Horizontal", 4, 3, 5, 3))
sketch5.addConstraint(Sketcher.Constraint("Horizontal", 6, 3, 7, 3))
sketch5.addConstraint(Sketcher.Constraint("Horizontal", 8, 3, 9, 3))
sketch5.addConstraint(Sketcher.Constraint("Horizontal", 10, 3, 11, 3))
sketch5.addConstraint(Sketcher.Constraint("Horizontal", 12, 3, 13, 3))
sketch5.addConstraint(Sketcher.Constraint("Horizontal", 14, 3, 15, 3))
sketch5.addConstraint(Sketcher.Constraint("Horizontal", 16, 3, 17, 3))
sketch5.addConstraint(Sketcher.Constraint("Horizontal", 18, 3, 19, 3))
sketch5.addConstraint(Sketcher.Constraint("Vertical", 1, 3, 2, 3))
sketch5.addConstraint(Sketcher.Constraint("Vertical", 4, 3, 6, 3))
sketch5.addConstraint(Sketcher.Constraint("Vertical", 5, 3, 7, 3))
sketch5.addConstraint(Sketcher.Constraint("Vertical", 6, 3, 8, 3))
sketch5.addConstraint(Sketcher.Constraint("Vertical", 7, 3, 9, 3))
sketch5.addConstraint(Sketcher.Constraint("Vertical", 8, 3, 10, 3))
sketch5.addConstraint(Sketcher.Constraint("Vertical", 9, 3, 11, 3))
sketch5.addConstraint(Sketcher.Constraint("Vertical", 10, 3, 12, 3))
sketch5.addConstraint(Sketcher.Constraint("Vertical", 11, 3, 13, 3))
sketch5.addConstraint(Sketcher.Constraint("Vertical", 12, 3, 14, 3))
sketch5.addConstraint(Sketcher.Constraint("Vertical", 13, 3, 15, 3))
sketch5.addConstraint(Sketcher.Constraint("Vertical", 14, 3, 16, 3))
sketch5.addConstraint(Sketcher.Constraint("Vertical", 15, 3, 17, 3))
sketch5.addConstraint(Sketcher.Constraint("Vertical", 16, 3, 18, 3))
sketch5.addConstraint(Sketcher.Constraint("Vertical", 17, 3, 19, 3))
sketch5.addConstraint(Sketcher.Constraint("Diameter", 0, 1.0))
sketch5.addConstraint(Sketcher.Constraint("DistanceY", 4, 3, -1, 1, 69.0))
sketch5.addConstraint(Sketcher.Constraint("DistanceY", 10, 3, -1, 1, 39.0))
sketch5.addConstraint(Sketcher.Constraint("DistanceY", -1, 1, 14, 3, 21.0))
sketch5.addConstraint(Sketcher.Constraint("DistanceY", -1, 1, 18, 3, 51.0))
sketch5.addConstraint(Sketcher.Constraint("DistanceY", 8, 3, 12, 3, 60.0))
sketch5.addConstraint(Sketcher.Constraint("DistanceY", 12, 3, 16, 3, 30.0))
sketch5.addConstraint(Sketcher.Constraint("DistanceY", 32, 3, 30, 3, 30.0))
sketch5.addConstraint(Sketcher.Constraint("DistanceX", -1, 1, 1, 3, 15.4))
sketch5.addConstraint(Sketcher.Constraint("DistanceX", -1, 1, 3, 3, 23.6))
sketch5.addConstraint(Sketcher.Constraint("DistanceY", 6, 3, -1, 1, 77.5))
sketch5.addConstraint(Sketcher.Constraint("DistanceX", 0, 3, 4, 3, 28.1))
sketch5.addConstraint(Sketcher.Constraint("DistanceX", 4, 3, 5, 3, 2.1))
sketch5.addConstraint(Sketcher.Constraint("DistanceX", 20, 3, 18, 3, 73.6))
sketch5.addConstraint(Sketcher.Constraint("DistanceY", 2, 3, -1, 1, 55.25))
sketch5.addConstraint(Sketcher.Constraint("DistanceY", 0, 3, -1, 1, 60.772345))
pocket4 = body.newObject("PartDesign::Pocket", "Pocket003")
pocket4.Profile = sketch5
pocket4.Type = "ThroughAll"

doc.recompute()
